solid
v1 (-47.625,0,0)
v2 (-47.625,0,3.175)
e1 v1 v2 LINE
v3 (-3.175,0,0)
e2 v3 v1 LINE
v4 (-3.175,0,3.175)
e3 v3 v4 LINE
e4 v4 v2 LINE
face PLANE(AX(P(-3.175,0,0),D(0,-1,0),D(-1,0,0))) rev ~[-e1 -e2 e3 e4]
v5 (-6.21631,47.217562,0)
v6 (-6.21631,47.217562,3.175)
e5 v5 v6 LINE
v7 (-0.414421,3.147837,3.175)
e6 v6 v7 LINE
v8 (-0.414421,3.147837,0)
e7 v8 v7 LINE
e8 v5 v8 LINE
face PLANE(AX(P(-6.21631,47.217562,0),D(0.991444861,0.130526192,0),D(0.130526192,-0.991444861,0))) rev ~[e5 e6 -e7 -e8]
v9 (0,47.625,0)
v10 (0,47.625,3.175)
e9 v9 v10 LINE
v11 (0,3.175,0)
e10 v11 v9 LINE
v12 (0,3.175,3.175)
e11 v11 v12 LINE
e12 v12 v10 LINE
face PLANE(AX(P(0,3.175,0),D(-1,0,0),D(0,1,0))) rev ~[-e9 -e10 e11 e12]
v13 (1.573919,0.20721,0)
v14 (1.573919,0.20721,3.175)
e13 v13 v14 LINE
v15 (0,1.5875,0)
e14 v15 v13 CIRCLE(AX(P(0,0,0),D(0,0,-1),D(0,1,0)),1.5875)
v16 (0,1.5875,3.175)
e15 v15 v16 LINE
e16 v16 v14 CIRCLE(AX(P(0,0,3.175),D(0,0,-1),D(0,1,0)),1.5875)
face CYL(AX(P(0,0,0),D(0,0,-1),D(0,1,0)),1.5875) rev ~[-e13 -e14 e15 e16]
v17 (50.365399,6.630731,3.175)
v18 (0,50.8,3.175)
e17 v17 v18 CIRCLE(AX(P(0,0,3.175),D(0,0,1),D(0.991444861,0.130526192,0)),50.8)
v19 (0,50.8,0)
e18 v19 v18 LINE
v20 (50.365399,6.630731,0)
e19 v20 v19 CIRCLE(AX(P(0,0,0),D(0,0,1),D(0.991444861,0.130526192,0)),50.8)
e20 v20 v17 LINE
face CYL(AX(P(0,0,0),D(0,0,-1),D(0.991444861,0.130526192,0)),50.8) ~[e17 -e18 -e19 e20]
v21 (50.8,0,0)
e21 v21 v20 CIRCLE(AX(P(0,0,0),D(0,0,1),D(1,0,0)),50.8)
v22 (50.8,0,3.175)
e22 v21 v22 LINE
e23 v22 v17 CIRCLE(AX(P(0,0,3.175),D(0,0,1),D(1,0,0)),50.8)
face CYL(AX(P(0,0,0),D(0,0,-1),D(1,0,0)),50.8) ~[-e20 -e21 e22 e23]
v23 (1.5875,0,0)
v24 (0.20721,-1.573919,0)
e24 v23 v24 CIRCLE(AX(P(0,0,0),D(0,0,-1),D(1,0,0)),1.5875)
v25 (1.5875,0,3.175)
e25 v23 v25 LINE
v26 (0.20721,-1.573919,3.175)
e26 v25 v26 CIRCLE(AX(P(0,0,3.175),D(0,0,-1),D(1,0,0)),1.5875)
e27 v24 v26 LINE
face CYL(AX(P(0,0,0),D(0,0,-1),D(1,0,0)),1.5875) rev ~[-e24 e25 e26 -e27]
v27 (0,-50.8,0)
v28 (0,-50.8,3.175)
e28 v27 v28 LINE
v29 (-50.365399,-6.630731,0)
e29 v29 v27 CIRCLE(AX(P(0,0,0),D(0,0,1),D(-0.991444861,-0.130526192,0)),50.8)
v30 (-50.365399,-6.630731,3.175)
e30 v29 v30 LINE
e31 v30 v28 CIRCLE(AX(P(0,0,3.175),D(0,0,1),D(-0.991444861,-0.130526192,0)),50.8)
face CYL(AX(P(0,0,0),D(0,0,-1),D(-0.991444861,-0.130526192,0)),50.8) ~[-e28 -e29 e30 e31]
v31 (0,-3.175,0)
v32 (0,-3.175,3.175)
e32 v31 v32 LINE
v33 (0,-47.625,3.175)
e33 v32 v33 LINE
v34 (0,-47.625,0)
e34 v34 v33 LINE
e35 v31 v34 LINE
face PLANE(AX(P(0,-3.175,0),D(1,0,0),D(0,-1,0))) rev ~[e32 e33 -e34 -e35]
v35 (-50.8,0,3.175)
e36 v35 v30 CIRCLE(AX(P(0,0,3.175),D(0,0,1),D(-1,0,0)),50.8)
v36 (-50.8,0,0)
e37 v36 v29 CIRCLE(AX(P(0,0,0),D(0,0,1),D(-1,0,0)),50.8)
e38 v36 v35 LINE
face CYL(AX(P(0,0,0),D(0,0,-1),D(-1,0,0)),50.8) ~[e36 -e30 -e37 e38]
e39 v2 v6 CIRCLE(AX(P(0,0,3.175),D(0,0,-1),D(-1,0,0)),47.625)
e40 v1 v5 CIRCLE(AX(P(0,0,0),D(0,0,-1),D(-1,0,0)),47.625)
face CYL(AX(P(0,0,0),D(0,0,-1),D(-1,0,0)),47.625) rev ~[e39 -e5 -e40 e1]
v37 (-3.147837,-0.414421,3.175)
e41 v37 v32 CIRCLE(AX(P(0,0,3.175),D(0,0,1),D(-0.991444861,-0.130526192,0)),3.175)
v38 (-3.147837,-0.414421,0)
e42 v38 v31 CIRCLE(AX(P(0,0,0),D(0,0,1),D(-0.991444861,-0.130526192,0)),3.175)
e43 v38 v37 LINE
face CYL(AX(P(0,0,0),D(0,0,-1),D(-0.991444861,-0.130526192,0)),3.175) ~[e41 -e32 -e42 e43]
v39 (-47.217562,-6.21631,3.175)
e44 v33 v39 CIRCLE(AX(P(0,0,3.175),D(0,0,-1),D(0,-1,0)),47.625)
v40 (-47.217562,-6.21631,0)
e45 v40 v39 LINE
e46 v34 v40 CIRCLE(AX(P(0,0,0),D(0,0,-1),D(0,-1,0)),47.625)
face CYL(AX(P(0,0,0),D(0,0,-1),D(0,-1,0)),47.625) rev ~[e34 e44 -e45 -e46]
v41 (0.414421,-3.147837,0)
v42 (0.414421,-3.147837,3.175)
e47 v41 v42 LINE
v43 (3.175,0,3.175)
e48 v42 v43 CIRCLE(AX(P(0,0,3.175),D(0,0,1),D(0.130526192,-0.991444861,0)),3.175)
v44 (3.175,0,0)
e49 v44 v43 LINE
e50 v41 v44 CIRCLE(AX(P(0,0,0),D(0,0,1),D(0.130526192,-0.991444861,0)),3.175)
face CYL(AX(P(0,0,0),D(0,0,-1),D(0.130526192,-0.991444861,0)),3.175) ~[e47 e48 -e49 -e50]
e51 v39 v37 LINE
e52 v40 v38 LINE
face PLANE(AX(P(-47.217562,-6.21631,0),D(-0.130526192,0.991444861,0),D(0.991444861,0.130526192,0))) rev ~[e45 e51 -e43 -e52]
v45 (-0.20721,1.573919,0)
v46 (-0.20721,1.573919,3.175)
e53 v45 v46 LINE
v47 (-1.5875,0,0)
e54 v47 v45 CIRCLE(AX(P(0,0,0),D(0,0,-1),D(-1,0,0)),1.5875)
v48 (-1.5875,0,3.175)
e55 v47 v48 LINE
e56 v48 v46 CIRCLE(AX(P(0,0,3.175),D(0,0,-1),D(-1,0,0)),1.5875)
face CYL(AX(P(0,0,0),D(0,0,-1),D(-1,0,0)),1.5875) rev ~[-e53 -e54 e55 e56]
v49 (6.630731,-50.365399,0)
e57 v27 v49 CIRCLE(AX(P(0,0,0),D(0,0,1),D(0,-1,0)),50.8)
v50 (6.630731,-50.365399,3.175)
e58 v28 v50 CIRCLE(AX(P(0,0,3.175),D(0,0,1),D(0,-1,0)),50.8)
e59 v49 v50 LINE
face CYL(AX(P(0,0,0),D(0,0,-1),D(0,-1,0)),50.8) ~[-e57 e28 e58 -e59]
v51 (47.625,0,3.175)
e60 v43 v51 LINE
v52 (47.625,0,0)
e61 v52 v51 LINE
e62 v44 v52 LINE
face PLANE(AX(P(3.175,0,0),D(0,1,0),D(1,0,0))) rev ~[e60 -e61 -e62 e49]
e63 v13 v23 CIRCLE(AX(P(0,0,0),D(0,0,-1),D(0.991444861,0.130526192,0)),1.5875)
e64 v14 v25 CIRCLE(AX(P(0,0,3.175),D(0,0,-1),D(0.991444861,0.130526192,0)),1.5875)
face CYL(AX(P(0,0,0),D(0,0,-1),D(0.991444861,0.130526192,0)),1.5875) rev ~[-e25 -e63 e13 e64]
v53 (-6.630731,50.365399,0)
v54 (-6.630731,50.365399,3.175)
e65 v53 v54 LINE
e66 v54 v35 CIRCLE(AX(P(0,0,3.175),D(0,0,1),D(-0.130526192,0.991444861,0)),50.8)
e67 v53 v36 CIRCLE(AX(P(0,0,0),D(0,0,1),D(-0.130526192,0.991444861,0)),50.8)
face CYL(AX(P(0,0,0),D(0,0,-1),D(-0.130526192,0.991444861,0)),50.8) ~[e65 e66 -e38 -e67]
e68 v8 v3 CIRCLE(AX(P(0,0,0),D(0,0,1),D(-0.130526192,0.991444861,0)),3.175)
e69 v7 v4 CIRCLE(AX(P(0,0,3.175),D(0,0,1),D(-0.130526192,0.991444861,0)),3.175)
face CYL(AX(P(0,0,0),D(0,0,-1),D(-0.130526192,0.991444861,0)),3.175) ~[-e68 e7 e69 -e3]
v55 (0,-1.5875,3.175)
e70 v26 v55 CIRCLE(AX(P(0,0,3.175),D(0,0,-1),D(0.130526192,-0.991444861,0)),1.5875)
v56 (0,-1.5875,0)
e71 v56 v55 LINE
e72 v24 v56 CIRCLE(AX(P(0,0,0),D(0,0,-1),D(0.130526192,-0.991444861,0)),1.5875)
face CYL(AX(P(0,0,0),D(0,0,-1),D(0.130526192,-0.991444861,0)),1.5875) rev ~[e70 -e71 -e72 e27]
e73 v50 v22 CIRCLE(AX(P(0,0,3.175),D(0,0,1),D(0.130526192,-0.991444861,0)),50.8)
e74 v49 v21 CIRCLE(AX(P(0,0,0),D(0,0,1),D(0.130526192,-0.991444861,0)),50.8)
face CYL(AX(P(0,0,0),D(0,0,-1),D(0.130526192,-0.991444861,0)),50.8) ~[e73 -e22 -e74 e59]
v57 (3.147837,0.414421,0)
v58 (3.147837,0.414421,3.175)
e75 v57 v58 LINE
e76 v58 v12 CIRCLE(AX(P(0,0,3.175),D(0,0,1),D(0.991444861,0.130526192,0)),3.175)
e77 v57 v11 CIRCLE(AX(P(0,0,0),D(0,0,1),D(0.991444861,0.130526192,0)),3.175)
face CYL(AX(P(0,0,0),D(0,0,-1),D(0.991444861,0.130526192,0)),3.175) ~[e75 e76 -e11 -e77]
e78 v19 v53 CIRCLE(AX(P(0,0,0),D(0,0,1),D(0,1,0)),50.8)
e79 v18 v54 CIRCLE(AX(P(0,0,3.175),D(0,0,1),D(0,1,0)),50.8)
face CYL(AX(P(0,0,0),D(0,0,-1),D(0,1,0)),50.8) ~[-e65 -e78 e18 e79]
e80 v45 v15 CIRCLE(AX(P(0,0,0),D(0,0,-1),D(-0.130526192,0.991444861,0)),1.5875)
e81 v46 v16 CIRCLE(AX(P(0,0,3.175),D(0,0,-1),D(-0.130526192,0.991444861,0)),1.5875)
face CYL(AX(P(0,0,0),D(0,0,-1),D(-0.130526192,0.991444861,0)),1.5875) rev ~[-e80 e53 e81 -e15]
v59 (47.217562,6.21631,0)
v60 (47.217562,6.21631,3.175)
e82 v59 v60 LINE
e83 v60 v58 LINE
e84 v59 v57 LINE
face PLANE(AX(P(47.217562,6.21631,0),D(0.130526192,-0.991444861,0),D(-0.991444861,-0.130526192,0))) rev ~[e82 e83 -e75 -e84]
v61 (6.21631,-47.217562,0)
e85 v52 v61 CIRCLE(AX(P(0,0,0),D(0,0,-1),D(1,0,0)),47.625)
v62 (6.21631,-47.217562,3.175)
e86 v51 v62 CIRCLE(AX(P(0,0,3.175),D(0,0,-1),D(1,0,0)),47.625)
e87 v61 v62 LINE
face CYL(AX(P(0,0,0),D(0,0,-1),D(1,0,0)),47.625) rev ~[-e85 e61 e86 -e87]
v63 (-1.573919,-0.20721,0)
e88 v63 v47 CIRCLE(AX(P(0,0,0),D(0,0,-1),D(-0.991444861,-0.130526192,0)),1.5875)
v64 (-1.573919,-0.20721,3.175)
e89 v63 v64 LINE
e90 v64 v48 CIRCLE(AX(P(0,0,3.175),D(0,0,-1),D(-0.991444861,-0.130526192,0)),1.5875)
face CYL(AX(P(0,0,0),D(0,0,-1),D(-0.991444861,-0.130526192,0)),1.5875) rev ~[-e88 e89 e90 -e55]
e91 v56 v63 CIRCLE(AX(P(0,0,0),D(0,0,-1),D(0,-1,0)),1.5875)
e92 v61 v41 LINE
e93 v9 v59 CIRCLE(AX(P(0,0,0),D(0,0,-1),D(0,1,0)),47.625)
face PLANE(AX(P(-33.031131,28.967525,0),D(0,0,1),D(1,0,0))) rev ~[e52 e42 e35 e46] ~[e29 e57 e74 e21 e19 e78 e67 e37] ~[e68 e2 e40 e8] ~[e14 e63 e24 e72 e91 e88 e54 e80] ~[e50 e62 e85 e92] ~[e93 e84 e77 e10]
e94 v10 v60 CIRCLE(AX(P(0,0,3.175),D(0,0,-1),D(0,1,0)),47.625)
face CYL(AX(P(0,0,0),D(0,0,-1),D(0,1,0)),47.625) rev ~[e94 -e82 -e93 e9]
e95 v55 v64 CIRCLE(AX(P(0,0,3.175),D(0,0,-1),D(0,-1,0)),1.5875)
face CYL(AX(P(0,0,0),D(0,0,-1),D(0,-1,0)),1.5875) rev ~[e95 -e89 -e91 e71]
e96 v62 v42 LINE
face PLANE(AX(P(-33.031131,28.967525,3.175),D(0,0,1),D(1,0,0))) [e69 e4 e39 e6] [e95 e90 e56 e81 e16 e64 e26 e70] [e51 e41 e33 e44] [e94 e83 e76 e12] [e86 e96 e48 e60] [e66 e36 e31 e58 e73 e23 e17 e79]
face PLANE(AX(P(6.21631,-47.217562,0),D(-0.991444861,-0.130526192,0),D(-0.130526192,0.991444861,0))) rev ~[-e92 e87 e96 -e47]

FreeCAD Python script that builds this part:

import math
import FreeCAD as App
import Part
import Sketcher
Q = App.Units.Quantity

doc = App.newDocument("Part")
body = doc.addObject("PartDesign::Body", "Body")

# Sketch on XY plane
sketch1 = body.newObject("Sketcher::SketchObject", "Sketch")
sketch1.AttachmentSupport = (doc.getObject("XY_Plane"), [""])
sketch1.MapMode = "FlatFace"
sketch1.addGeometry(Part.ArcOfCircle(Part.Circle(App.Vector(0, 0, 0), App.Vector(0, 0, 1), 50.8), math.radians(-82), math.radians(0)), False)
sketch1.addGeometry(Part.ArcOfCircle(Part.Circle(App.Vector(0, 0, 0), App.Vector(0, 0, 1), 50.8), math.radians(0), math.radians(7.5)), False)
sketch1.addGeometry(Part.ArcOfCircle(Part.Circle(App.Vector(0, 0, 0), App.Vector(0, 0, 1), 50.8), math.radians(8), math.radians(90)), False)
sketch1.addGeometry(Part.ArcOfCircle(Part.Circle(App.Vector(0, 0, 0), App.Vector(0, 0, 1), 50.8), math.radians(90), math.radians(97.5)), False)
sketch1.addGeometry(Part.ArcOfCircle(Part.Circle(App.Vector(0, 0, 0), App.Vector(0, 0, 1), 50.8), math.radians(98), math.radians(180)), False)
sketch1.addGeometry(Part.ArcOfCircle(Part.Circle(App.Vector(0, 0, 0), App.Vector(0, 0, 1), 50.8), math.radians(-180), math.radians(-172.5)), False)
sketch1.addGeometry(Part.ArcOfCircle(Part.Circle(App.Vector(0, 0, 0), App.Vector(0, 0, 1), 50.8), math.radians(-172), math.radians(-90)), False)
sketch1.addGeometry(Part.ArcOfCircle(Part.Circle(App.Vector(0, 0, 0), App.Vector(0, 0, 1), 50.8), math.radians(-90), math.radians(-82.5)), False)
sketch1.addGeometry(Part.ArcOfCircle(Part.Circle(App.Vector(0, 0, 0), App.Vector(0, 0, 1), 47.62), math.radians(98), math.radians(180)), False)
sketch1.addGeometry(Part.LineSegment(App.Vector(-6.22, 47.22, 0), App.Vector(-0.41, 3.15, 0)), False)
sketch1.addGeometry(Part.ArcOfCircle(Part.Circle(App.Vector(0, 0, 0), App.Vector(0, 0, 1), 3.17), math.radians(97), math.radians(180)), False)
sketch1.addGeometry(Part.LineSegment(App.Vector(-3.17, 0, 0), App.Vector(-47.62, 0, 0)), False)
sketch1.addGeometry(Part.ArcOfCircle(Part.Circle(App.Vector(0, 0, 0), App.Vector(0, 0, 1), 3.17), math.radians(-173), math.radians(-90)), False)
sketch1.addGeometry(Part.LineSegment(App.Vector(0, -3.17, 0), App.Vector(0, -47.62, 0)), False)
sketch1.addGeometry(Part.ArcOfCircle(Part.Circle(App.Vector(0, 0, 0), App.Vector(0, 0, 1), 47.62), math.radians(-172), math.radians(-90)), False)
sketch1.addGeometry(Part.LineSegment(App.Vector(-47.22, -6.22, 0), App.Vector(-3.15, -0.41, 0)), False)
sketch1.addGeometry(Part.ArcOfCircle(Part.Circle(App.Vector(0, 0, 0), App.Vector(0, 0, 1), 3.17), math.radians(-83), math.radians(0)), False)
sketch1.addGeometry(Part.LineSegment(App.Vector(3.17, 0, 0), App.Vector(47.62, 0, 0)), False)
sketch1.addGeometry(Part.ArcOfCircle(Part.Circle(App.Vector(0, 0, 0), App.Vector(0, 0, 1), 47.62), math.radians(-82), math.radians(0)), False)
sketch1.addGeometry(Part.LineSegment(App.Vector(6.22, -47.22, 0), App.Vector(0.41, -3.15, 0)), False)
sketch1.addGeometry(Part.ArcOfCircle(Part.Circle(App.Vector(0, 0, 0), App.Vector(0, 0, 1), 3.17), math.radians(7), math.radians(90)), False)
sketch1.addGeometry(Part.LineSegment(App.Vector(0, 3.17, 0), App.Vector(0, 47.62, 0)), False)
sketch1.addGeometry(Part.ArcOfCircle(Part.Circle(App.Vector(0, 0, 0), App.Vector(0, 0, 1), 47.62), math.radians(8), math.radians(90)), False)
sketch1.addGeometry(Part.LineSegment(App.Vector(47.22, 6.22, 0), App.Vector(3.15, 0.41, 0)), False)
sketch1.addGeometry(Part.ArcOfCircle(Part.Circle(App.Vector(0, 0, 0), App.Vector(0, 0, 1), 1.59), math.radians(97), math.radians(180)), False)
sketch1.addGeometry(Part.ArcOfCircle(Part.Circle(App.Vector(0, 0, 0), App.Vector(0, 0, 1), 1.59), math.radians(90), math.radians(97.5)), False)
sketch1.addGeometry(Part.ArcOfCircle(Part.Circle(App.Vector(0, 0, 0), App.Vector(0, 0, 1), 1.59), math.radians(7), math.radians(90)), False)
sketch1.addGeometry(Part.ArcOfCircle(Part.Circle(App.Vector(0, 0, 0), App.Vector(0, 0, 1), 1.59), math.radians(0), math.radians(7.5)), False)
sketch1.addGeometry(Part.ArcOfCircle(Part.Circle(App.Vector(0, 0, 0), App.Vector(0, 0, 1), 1.59), math.radians(-83), math.radians(0)), False)
sketch1.addGeometry(Part.ArcOfCircle(Part.Circle(App.Vector(0, 0, 0), App.Vector(0, 0, 1), 1.59), math.radians(-90), math.radians(-82.5)), False)
sketch1.addGeometry(Part.ArcOfCircle(Part.Circle(App.Vector(0, 0, 0), App.Vector(0, 0, 1), 1.59), math.radians(-173), math.radians(-90)), False)
sketch1.addGeometry(Part.ArcOfCircle(Part.Circle(App.Vector(0, 0, 0), App.Vector(0, 0, 1), 1.59), math.radians(-180), math.radians(-172.5)), False)
sketch1.addConstraint(Sketcher.Constraint("Tangent", 0, 2, 1, 1))
sketch1.addConstraint(Sketcher.Constraint("Tangent", 1, 2, 2, 1))
sketch1.addConstraint(Sketcher.Constraint("Tangent", 2, 2, 3, 1))
sketch1.addConstraint(Sketcher.Constraint("Tangent", 3, 2, 4, 1))
sketch1.addConstraint(Sketcher.Constraint("Tangent", 4, 2, 5, 1))
sketch1.addConstraint(Sketcher.Constraint("Tangent", 5, 2, 6, 1))
sketch1.addConstraint(Sketcher.Constraint("Tangent", 6, 2, 7, 1))
sketch1.addConstraint(Sketcher.Constraint("Tangent", 7, 2, 0, 1))
sketch1.addConstraint(Sketcher.Constraint("Coincident", 8, 1, 9, 1))
sketch1.addConstraint(Sketcher.Constraint("Coincident", 9, 2, 10, 1))
sketch1.addConstraint(Sketcher.Constraint("Coincident", 10, 2, 11, 1))
sketch1.addConstraint(Sketcher.Constraint("Coincident", 11, 2, 8, 2))
sketch1.addConstraint(Sketcher.Constraint("Coincident", 12, 2, 13, 1))
sketch1.addConstraint(Sketcher.Constraint("Coincident", 13, 2, 14, 2))
sketch1.addConstraint(Sketcher.Constraint("Coincident", 14, 1, 15, 1))
sketch1.addConstraint(Sketcher.Constraint("Coincident", 15, 2, 12, 1))
sketch1.addConstraint(Sketcher.Constraint("Coincident", 16, 2, 17, 1))
sketch1.addConstraint(Sketcher.Constraint("Coincident", 17, 2, 18, 2))
sketch1.addConstraint(Sketcher.Constraint("Coincident", 18, 1, 19, 1))
sketch1.addConstraint(Sketcher.Constraint("Coincident", 19, 2, 16, 1))
sketch1.addConstraint(Sketcher.Constraint("Coincident", 20, 2, 21, 1))
sketch1.addConstraint(Sketcher.Constraint("Coincident", 21, 2, 22, 2))
sketch1.addConstraint(Sketcher.Constraint("Coincident", 22, 1, 23, 1))
sketch1.addConstraint(Sketcher.Constraint("Coincident", 23, 2, 20, 1))
sketch1.addConstraint(Sketcher.Constraint("Tangent", 24, 1, 25, 2))
sketch1.addConstraint(Sketcher.Constraint("Tangent", 25, 1, 26, 2))
sketch1.addConstraint(Sketcher.Constraint("Tangent", 26, 1, 27, 2))
sketch1.addConstraint(Sketcher.Constraint("Tangent", 27, 1, 28, 2))
sketch1.addConstraint(Sketcher.Constraint("Tangent", 28, 1, 29, 2))
sketch1.addConstraint(Sketcher.Constraint("Tangent", 29, 1, 30, 2))
sketch1.addConstraint(Sketcher.Constraint("Tangent", 30, 1, 31, 2))
sketch1.addConstraint(Sketcher.Constraint("Tangent", 31, 1, 24, 2))
sketch1.addConstraint(Sketcher.Constraint("Horizontal", 11))
sketch1.addConstraint(Sketcher.Constraint("Vertical", 13))
sketch1.addConstraint(Sketcher.Constraint("Horizontal", 17))
sketch1.addConstraint(Sketcher.Constraint("Vertical", 21))
sketch1.addConstraint(Sketcher.Constraint("Coincident", 0, 3, -1, 1))
sketch1.addConstraint(Sketcher.Constraint("Coincident", 2, 3, -1, 1))
sketch1.addConstraint(Sketcher.Constraint("Coincident", 4, 3, -1, 1))
sketch1.addConstraint(Sketcher.Constraint("Coincident", 8, 3, -1, 1))
sketch1.addConstraint(Sketcher.Constraint("Coincident", 10, 3, -1, 1))
sketch1.addConstraint(Sketcher.Constraint("Coincident", 12, 3, -1, 1))
sketch1.addConstraint(Sketcher.Constraint("Coincident", 14, 3, -1, 1))
sketch1.addConstraint(Sketcher.Constraint("Coincident", 16, 3, -1, 1))
sketch1.addConstraint(Sketcher.Constraint("Coincident", 18, 3, -1, 1))
sketch1.addConstraint(Sketcher.Constraint("Coincident", 20, 3, -1, 1))
sketch1.addConstraint(Sketcher.Constraint("Coincident", 22, 3, -1, 1))
sketch1.addConstraint(Sketcher.Constraint("Coincident", 24, 3, -1, 1))
sketch1.addConstraint(Sketcher.Constraint("Coincident", 26, 3, -1, 1))
sketch1.addConstraint(Sketcher.Constraint("Coincident", 28, 3, -1, 1))
sketch1.addConstraint(Sketcher.Constraint("Equal", 4, 5))
sketch1.addConstraint(Sketcher.Constraint("Equal", 10, 12))
sketch1.addConstraint(Sketcher.Constraint("Equal", 8, 14))
sketch1.addConstraint(Sketcher.Constraint("Equal", 12, 16))
sketch1.addConstraint(Sketcher.Constraint("Equal", 14, 18))
sketch1.addConstraint(Sketcher.Constraint("Equal", 16, 20))
sketch1.addConstraint(Sketcher.Constraint("Equal", 18, 22))
sketch1.addConstraint(Sketcher.Constraint("Equal", 28, 29))
sketch1.addConstraint(Sketcher.Constraint("PointOnObject", 0, 2, -1))
sketch1.addConstraint(Sketcher.Constraint("PointOnObject", 2, 2, -2))
sketch1.addConstraint(Sketcher.Constraint("PointOnObject", 4, 2, -1))
sketch1.addConstraint(Sketcher.Constraint("PointOnObject", 6, 2, -2))
sketch1.addConstraint(Sketcher.Constraint("PointOnObject", 10, 2, -1))
sketch1.addConstraint(Sketcher.Constraint("PointOnObject", 12, 2, -2))
sketch1.addConstraint(Sketcher.Constraint("PointOnObject", 16, 2, -1))
sketch1.addConstraint(Sketcher.Constraint("PointOnObject", 20, 2, -2))
sketch1.addConstraint(Sketcher.Constraint("PointOnObject", 25, 1, -2))
sketch1.addConstraint(Sketcher.Constraint("PointOnObject", 27, 1, -1))
sketch1.addConstraint(Sketcher.Constraint("PointOnObject", 29, 1, -2))
sketch1.addConstraint(Sketcher.Constraint("PointOnObject", 31, 1, -1))
sketch1.addConstraint(Sketcher.Constraint("Perpendicular", 9, 15))
sketch1.addConstraint(Sketcher.Constraint("Perpendicular", 15, 19))
sketch1.addConstraint(Sketcher.Constraint("Perpendicular", 19, 23))
sketch1.addConstraint(Sketcher.Constraint("Radius", 0, Q("2 in")))
sketch1.addConstraint(Sketcher.Constraint("Radius", 8, Q("1.875 in")))
sketch1.addConstraint(Sketcher.Constraint("Radius", 10, Q("0.125 in")))
sketch1.addConstraint(Sketcher.Constraint("Radius", 24, Q("0.0625 in")))
sketch1.addConstraint(Sketcher.Constraint("Angle", 9, Q("-82.5 deg")))
sketch1.addConstraint(Sketcher.Constraint("DistanceX", -1, 1, 1, 2, 50.365399))
sketch1.addConstraint(Sketcher.Constraint("DistanceY", -1, 1, 3, 2, 50.365399))
sketch1.addConstraint(Sketcher.Constraint("DistanceX", 5, 2, -1, 1, 50.365399))
sketch1.addConstraint(Sketcher.Constraint("DistanceY", 7, 2, -1, 1, 50.365399))
sketch1.addConstraint(Sketcher.Constraint("DistanceX", 8, 1, -1, 1, 6.21631))
sketch1.addConstraint(Sketcher.Constraint("DistanceX", 14, 1, -1, 1, 47.217562))
sketch1.addConstraint(Sketcher.Constraint("DistanceX", -1, 1, 18, 1, 6.21631))
sketch1.addConstraint(Sketcher.Constraint("DistanceX", -1, 1, 22, 1, 47.217562))
sketch1.addConstraint(Sketcher.Constraint("DistanceX", 24, 1, -1, 1, 0.20721))
sketch1.addConstraint(Sketcher.Constraint("DistanceX", -1, 1, 26, 1, 1.573919))
sketch1.addConstraint(Sketcher.Constraint("DistanceX", -1, 1, 28, 1, 0.20721))
sketch1.addConstraint(Sketcher.Constraint("DistanceX", 30, 1, -1, 1, 1.573919))
pad1 = body.newObject("PartDesign::Pad", "Pad")
pad1.Profile = sketch1
pad1.Length = Q("0.125 in")

doc.recompute()
